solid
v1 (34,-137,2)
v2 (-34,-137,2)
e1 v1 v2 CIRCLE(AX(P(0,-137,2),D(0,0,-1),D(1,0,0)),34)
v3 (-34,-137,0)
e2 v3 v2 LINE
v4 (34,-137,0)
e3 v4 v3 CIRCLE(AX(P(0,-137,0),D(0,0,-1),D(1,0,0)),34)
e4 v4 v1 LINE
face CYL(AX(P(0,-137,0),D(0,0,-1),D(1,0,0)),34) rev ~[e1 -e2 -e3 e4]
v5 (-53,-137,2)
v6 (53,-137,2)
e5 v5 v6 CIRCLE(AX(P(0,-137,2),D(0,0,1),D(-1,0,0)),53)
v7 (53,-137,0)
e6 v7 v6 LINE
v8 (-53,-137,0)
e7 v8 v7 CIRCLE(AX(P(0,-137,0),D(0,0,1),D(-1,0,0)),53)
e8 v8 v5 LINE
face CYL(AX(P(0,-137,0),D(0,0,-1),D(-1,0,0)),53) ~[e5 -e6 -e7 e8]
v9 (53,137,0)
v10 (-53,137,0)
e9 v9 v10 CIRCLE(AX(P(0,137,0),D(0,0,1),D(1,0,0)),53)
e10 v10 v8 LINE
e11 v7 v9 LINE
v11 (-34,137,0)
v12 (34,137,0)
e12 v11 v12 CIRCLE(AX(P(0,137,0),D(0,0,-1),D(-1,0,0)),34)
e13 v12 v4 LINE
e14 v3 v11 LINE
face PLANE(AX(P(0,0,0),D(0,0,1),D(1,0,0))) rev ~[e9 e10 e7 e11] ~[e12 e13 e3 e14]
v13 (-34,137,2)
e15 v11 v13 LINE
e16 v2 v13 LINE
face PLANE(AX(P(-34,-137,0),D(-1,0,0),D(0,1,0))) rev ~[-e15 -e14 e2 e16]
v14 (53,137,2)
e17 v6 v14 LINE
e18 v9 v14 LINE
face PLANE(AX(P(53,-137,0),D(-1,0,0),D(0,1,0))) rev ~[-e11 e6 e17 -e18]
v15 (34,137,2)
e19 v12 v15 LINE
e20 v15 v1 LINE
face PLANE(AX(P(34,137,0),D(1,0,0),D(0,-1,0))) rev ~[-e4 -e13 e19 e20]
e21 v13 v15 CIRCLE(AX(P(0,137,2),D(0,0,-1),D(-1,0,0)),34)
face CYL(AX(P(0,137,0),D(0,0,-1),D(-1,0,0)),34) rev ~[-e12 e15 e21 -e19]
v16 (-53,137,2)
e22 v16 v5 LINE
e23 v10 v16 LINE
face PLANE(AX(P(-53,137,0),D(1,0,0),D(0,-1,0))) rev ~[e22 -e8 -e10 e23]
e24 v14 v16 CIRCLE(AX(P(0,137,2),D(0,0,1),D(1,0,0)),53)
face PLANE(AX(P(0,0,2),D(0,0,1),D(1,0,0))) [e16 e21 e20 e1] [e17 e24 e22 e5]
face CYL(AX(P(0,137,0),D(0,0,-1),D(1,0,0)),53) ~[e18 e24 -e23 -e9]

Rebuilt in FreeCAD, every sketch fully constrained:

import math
import FreeCAD as App
import Part
import Sketcher

V = App.Vector
Q = App.Units.Quantity

doc = App.newDocument("Part")
body = doc.addObject("PartDesign::Body", "Body")

sketch1 = body.newObject("Sketcher::SketchObject", "Sketch")
sketch1.AttachmentSupport = (doc.getObject("XY_Plane"), [""])
sketch1.MapMode = "FlatFace"
sketch1.addGeometry([
    Part.ArcOfCircle(Part.Circle(V(0, 137, 0), V(0, 0, 1), 53), math.radians(0), math.radians(180)),
    Part.LineSegment(V(-53, 137, 0), V(-53, -137, 0)),
    Part.ArcOfCircle(Part.Circle(V(0, -137, 0), V(0, 0, 1), 53), math.radians(180), math.radians(360)),
    Part.LineSegment(V(53, -137, 0), V(53, 137, 0)),
    Part.ArcOfCircle(Part.Circle(V(0, -137, 0), V(0, 0, 1), 34), math.radians(180), math.radians(360)),
    Part.LineSegment(V(-34, -137, 0), V(-34, 137, 0)),
    Part.ArcOfCircle(Part.Circle(V(0, 137, 0), V(0, 0, 1), 34), math.radians(0), math.radians(180)),
    Part.LineSegment(V(34, 137, 0), V(34, -137, 0)),
], False)
sketch1.addConstraint([
    Sketcher.Constraint("Tangent", 0, 2, 1, 1),
    Sketcher.Constraint("Tangent", 1, 2, 2, 1),
    Sketcher.Constraint("Tangent", 2, 2, 3, 1),
    Sketcher.Constraint("Tangent", 3, 2, 0, 1),
    Sketcher.Constraint("Tangent", 4, 1, 5, 1),
    Sketcher.Constraint("Tangent", 5, 2, 6, 2),
    Sketcher.Constraint("Tangent", 6, 1, 7, 1),
    Sketcher.Constraint("Tangent", 7, 2, 4, 2),
    Sketcher.Constraint("Vertical", 1),
    Sketcher.Constraint("Vertical", 3),
    Sketcher.Constraint("Vertical", 5),
    Sketcher.Constraint("Vertical", 7),
    Sketcher.Constraint("Coincident", 4, 3, 2, 3),
    Sketcher.Constraint("Symmetric", 0, 3, 2, 3, -1, 1),
    Sketcher.Constraint("Horizontal", 6, 3, 0, 2),
    Sketcher.Constraint("Radius", 0, Q("53 mm")),
    Sketcher.Constraint("Radius", 4, Q("34 mm")),
    Sketcher.Constraint("DistanceY", 1, 2, 1, 1, Q("274 mm")),
])
pad1 = body.newObject("PartDesign::Pad", "Pad")
pad1.Profile = sketch1
pad1.Length = 2

doc.recompute()
